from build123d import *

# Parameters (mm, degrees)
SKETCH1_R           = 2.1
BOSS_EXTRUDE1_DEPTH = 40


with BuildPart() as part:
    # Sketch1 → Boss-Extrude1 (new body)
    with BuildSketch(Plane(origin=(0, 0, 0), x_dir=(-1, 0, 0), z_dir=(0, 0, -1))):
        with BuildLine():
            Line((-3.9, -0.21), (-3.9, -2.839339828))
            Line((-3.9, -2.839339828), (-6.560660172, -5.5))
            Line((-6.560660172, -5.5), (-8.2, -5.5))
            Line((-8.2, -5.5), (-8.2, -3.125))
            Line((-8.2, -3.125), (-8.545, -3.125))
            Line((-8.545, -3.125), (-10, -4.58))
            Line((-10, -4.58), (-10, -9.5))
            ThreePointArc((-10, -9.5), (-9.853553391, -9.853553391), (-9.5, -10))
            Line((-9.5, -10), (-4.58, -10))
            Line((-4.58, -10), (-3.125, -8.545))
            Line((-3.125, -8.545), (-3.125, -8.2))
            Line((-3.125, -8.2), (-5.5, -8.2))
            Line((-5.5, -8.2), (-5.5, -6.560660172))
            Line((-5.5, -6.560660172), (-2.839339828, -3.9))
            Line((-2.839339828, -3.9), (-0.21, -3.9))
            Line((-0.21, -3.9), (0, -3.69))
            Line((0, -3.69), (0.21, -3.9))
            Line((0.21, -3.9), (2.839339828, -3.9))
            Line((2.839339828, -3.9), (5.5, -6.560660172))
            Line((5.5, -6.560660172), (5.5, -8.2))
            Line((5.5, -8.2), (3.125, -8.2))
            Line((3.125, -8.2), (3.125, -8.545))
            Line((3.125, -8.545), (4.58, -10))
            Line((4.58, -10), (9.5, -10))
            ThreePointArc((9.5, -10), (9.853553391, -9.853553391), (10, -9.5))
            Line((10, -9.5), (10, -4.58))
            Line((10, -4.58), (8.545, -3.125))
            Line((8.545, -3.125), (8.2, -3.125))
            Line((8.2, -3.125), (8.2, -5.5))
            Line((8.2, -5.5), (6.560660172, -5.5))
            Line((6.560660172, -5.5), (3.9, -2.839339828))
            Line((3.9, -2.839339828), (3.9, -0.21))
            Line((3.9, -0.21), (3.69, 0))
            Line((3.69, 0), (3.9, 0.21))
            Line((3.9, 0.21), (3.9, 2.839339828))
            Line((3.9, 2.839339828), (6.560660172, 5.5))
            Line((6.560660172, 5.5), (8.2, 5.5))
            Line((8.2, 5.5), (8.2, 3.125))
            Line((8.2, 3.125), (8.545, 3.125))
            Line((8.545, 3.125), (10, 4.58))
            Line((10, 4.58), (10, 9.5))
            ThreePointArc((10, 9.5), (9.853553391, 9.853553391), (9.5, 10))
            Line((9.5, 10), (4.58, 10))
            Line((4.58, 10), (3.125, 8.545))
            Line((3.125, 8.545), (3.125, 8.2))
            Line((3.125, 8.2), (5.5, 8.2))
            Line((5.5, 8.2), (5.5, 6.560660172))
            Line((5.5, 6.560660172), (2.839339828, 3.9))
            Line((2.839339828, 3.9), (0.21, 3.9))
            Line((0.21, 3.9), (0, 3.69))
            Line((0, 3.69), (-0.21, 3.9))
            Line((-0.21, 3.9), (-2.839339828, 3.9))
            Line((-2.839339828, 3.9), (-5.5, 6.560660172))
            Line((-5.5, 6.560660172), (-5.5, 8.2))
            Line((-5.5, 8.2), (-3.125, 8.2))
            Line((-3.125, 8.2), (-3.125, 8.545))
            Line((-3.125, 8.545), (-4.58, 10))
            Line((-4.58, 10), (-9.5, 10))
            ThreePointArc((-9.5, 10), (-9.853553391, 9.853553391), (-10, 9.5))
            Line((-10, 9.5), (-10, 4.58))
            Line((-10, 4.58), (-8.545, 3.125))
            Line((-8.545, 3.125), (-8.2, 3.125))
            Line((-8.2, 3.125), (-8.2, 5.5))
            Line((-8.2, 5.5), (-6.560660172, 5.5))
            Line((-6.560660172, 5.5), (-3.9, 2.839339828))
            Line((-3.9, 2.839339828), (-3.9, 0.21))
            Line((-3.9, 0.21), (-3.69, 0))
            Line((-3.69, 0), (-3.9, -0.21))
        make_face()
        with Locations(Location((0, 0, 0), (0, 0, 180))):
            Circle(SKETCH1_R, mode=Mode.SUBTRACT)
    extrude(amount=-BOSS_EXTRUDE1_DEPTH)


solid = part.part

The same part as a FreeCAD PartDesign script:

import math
import FreeCAD as App
import Part
import Sketcher

V = App.Vector

doc = App.newDocument("Part")
body = doc.addObject("PartDesign::Body", "Body")

sketch1 = body.newObject("Sketcher::SketchObject", "Sketch")
sketch1.AttachmentSupport = (doc.getObject("XY_Plane"), [""])
sketch1.MapMode = "FlatFace"
sketch1.addGeometry([
    Part.LineSegment(V(3.9, -0.21, 0), V(3.9, -2.84, 0)),
    Part.LineSegment(V(3.9, -2.84, 0), V(6.56, -5.5, 0)),
    Part.LineSegment(V(6.56, -5.5, 0), V(8.2, -5.5, 0)),
    Part.LineSegment(V(8.2, -5.5, 0), V(8.2, -3.12, 0)),
    Part.LineSegment(V(8.2, -3.12, 0), V(8.54, -3.12, 0)),
    Part.LineSegment(V(8.54, -3.12, 0), V(10, -4.58, 0)),
    Part.LineSegment(V(10, -4.58, 0), V(10, -9.5, 0)),
    Part.ArcOfCircle(Part.Circle(V(9.5, -9.5, 0), V(0, 0, 1), 0.5), math.radians(-90), math.radians(0)),
    Part.LineSegment(V(9.5, -10, 0), V(4.58, -10, 0)),
    Part.LineSegment(V(4.58, -10, 0), V(3.12, -8.54, 0)),
    Part.LineSegment(V(3.12, -8.54, 0), V(3.12, -8.2, 0)),
    Part.LineSegment(V(3.12, -8.2, 0), V(5.5, -8.2, 0)),
    Part.LineSegment(V(5.5, -8.2, 0), V(5.5, -6.56, 0)),
    Part.LineSegment(V(5.5, -6.56, 0), V(2.84, -3.9, 0)),
    Part.LineSegment(V(2.84, -3.9, 0), V(0.21, -3.9, 0)),
    Part.LineSegment(V(0.21, -3.9, 0), V(0, -3.69, 0)),
    Part.LineSegment(V(0, -3.69, 0), V(-0.21, -3.9, 0)),
    Part.LineSegment(V(-0.21, -3.9, 0), V(-2.84, -3.9, 0)),
    Part.LineSegment(V(-2.84, -3.9, 0), V(-5.5, -6.56, 0)),
    Part.LineSegment(V(-5.5, -6.56, 0), V(-5.5, -8.2, 0)),
    Part.LineSegment(V(-5.5, -8.2, 0), V(-3.12, -8.2, 0)),
    Part.LineSegment(V(-3.12, -8.2, 0), V(-3.12, -8.54, 0)),
    Part.LineSegment(V(-3.12, -8.54, 0), V(-4.58, -10, 0)),
    Part.LineSegment(V(-4.58, -10, 0), V(-9.5, -10, 0)),
    Part.ArcOfCircle(Part.Circle(V(-9.5, -9.5, 0), V(0, 0, 1), 0.5), math.radians(180), math.radians(270)),
    Part.LineSegment(V(-10, -9.5, 0), V(-10, -4.58, 0)),
    Part.LineSegment(V(-10, -4.58, 0), V(-8.54, -3.12, 0)),
    Part.LineSegment(V(-8.54, -3.12, 0), V(-8.2, -3.12, 0)),
    Part.LineSegment(V(-8.2, -3.12, 0), V(-8.2, -5.5, 0)),
    Part.LineSegment(V(-8.2, -5.5, 0), V(-6.56, -5.5, 0)),
    Part.LineSegment(V(-6.56, -5.5, 0), V(-3.9, -2.84, 0)),
    Part.LineSegment(V(-3.9, -2.84, 0), V(-3.9, -0.21, 0)),
    Part.LineSegment(V(-3.9, -0.21, 0), V(-3.69, 0, 0)),
    Part.LineSegment(V(-3.69, 0, 0), V(-3.9, 0.21, 0)),
    Part.LineSegment(V(-3.9, 0.21, 0), V(-3.9, 2.84, 0)),
    Part.LineSegment(V(-3.9, 2.84, 0), V(-6.56, 5.5, 0)),
    Part.LineSegment(V(-6.56, 5.5, 0), V(-8.2, 5.5, 0)),
    Part.LineSegment(V(-8.2, 5.5, 0), V(-8.2, 3.12, 0)),
    Part.LineSegment(V(-8.2, 3.12, 0), V(-8.54, 3.12, 0)),
    Part.LineSegment(V(-8.54, 3.12, 0), V(-10, 4.58, 0)),
    Part.LineSegment(V(-10, 4.58, 0), V(-10, 9.5, 0)),
    Part.ArcOfCircle(Part.Circle(V(-9.5, 9.5, 0), V(0, 0, 1), 0.5), math.radians(90), math.radians(180)),
    Part.LineSegment(V(-9.5, 10, 0), V(-4.58, 10, 0)),
    Part.LineSegment(V(-4.58, 10, 0), V(-3.12, 8.54, 0)),
    Part.LineSegment(V(-3.12, 8.54, 0), V(-3.12, 8.2, 0)),
    Part.LineSegment(V(-3.12, 8.2, 0), V(-5.5, 8.2, 0)),
    Part.LineSegment(V(-5.5, 8.2, 0), V(-5.5, 6.56, 0)),
    Part.LineSegment(V(-5.5, 6.56, 0), V(-2.84, 3.9, 0)),
    Part.LineSegment(V(-2.84, 3.9, 0), V(-0.21, 3.9, 0)),
    Part.LineSegment(V(-0.21, 3.9, 0), V(0, 3.69, 0)),
    Part.LineSegment(V(0, 3.69, 0), V(0.21, 3.9, 0)),
    Part.LineSegment(V(0.21, 3.9, 0), V(2.84, 3.9, 0)),
    Part.LineSegment(V(2.84, 3.9, 0), V(5.5, 6.56, 0)),
    Part.LineSegment(V(5.5, 6.56, 0), V(5.5, 8.2, 0)),
    Part.LineSegment(V(5.5, 8.2, 0), V(3.12, 8.2, 0)),
    Part.LineSegment(V(3.12, 8.2, 0), V(3.12, 8.54, 0)),
    Part.LineSegment(V(3.12, 8.54, 0), V(4.58, 10, 0)),
    Part.LineSegment(V(4.58, 10, 0), V(9.5, 10, 0)),
    Part.ArcOfCircle(Part.Circle(V(9.5, 9.5, 0), V(0, 0, 1), 0.5), math.radians(0), math.radians(90)),
    Part.LineSegment(V(10, 9.5, 0), V(10, 4.58, 0)),
    Part.LineSegment(V(10, 4.58, 0), V(8.54, 3.12, 0)),
    Part.LineSegment(V(8.54, 3.12, 0), V(8.2, 3.12, 0)),
    Part.LineSegment(V(8.2, 3.12, 0), V(8.2, 5.5, 0)),
    Part.LineSegment(V(8.2, 5.5, 0), V(6.56, 5.5, 0)),
    Part.LineSegment(V(6.56, 5.5, 0), V(3.9, 2.84, 0)),
    Part.LineSegment(V(3.9, 2.84, 0), V(3.9, 0.21, 0)),
    Part.LineSegment(V(3.9, 0.21, 0), V(3.69, 0, 0)),
    Part.LineSegment(V(3.69, 0, 0), V(3.9, -0.21, 0)),
    Part.Circle(V(0, 0, 0), V(0, 0, 1), 2.1),
], False)
sketch1.addConstraint([
    Sketcher.Constraint("Coincident", 0, 2, 1, 1),
    Sketcher.Constraint("Coincident", 1, 2, 2, 1),
    Sketcher.Constraint("Coincident", 2, 2, 3, 1),
    Sketcher.Constraint("Coincident", 3, 2, 4, 1),
    Sketcher.Constraint("Coincident", 4, 2, 5, 1),
    Sketcher.Constraint("Coincident", 5, 2, 6, 1),
    Sketcher.Constraint("Tangent", 6, 2, 7, 2),
    Sketcher.Constraint("Tangent", 7, 1, 8, 1),
    Sketcher.Constraint("Coincident", 8, 2, 9, 1),
    Sketcher.Constraint("Coincident", 9, 2, 10, 1),
    Sketcher.Constraint("Coincident", 10, 2, 11, 1),
    Sketcher.Constraint("Coincident", 11, 2, 12, 1),
    Sketcher.Constraint("Coincident", 12, 2, 13, 1),
    Sketcher.Constraint("Coincident", 13, 2, 14, 1),
    Sketcher.Constraint("Coincident", 14, 2, 15, 1),
    Sketcher.Constraint("Coincident", 15, 2, 16, 1),
    Sketcher.Constraint("Coincident", 16, 2, 17, 1),
    Sketcher.Constraint("Coincident", 17, 2, 18, 1),
    Sketcher.Constraint("Coincident", 18, 2, 19, 1),
    Sketcher.Constraint("Coincident", 19, 2, 20, 1),
    Sketcher.Constraint("Coincident", 20, 2, 21, 1),
    Sketcher.Constraint("Coincident", 21, 2, 22, 1),
    Sketcher.Constraint("Coincident", 22, 2, 23, 1),
    Sketcher.Constraint("Tangent", 23, 2, 24, 2),
    Sketcher.Constraint("Tangent", 24, 1, 25, 1),
    Sketcher.Constraint("Coincident", 25, 2, 26, 1),
    Sketcher.Constraint("Coincident", 26, 2, 27, 1),
    Sketcher.Constraint("Coincident", 27, 2, 28, 1),
    Sketcher.Constraint("Coincident", 28, 2, 29, 1),
    Sketcher.Constraint("Coincident", 29, 2, 30, 1),
    Sketcher.Constraint("Coincident", 30, 2, 31, 1),
    Sketcher.Constraint("Coincident", 31, 2, 32, 1),
    Sketcher.Constraint("Coincident", 32, 2, 33, 1),
    Sketcher.Constraint("Coincident", 33, 2, 34, 1),
    Sketcher.Constraint("Coincident", 34, 2, 35, 1),
    Sketcher.Constraint("Coincident", 35, 2, 36, 1),
    Sketcher.Constraint("Coincident", 36, 2, 37, 1),
    Sketcher.Constraint("Coincident", 37, 2, 38, 1),
    Sketcher.Constraint("Coincident", 38, 2, 39, 1),
    Sketcher.Constraint("Coincident", 39, 2, 40, 1),
    Sketcher.Constraint("Tangent", 40, 2, 41, 2),
    Sketcher.Constraint("Tangent", 41, 1, 42, 1),
    Sketcher.Constraint("Coincident", 42, 2, 43, 1),
    Sketcher.Constraint("Coincident", 43, 2, 44, 1),
    Sketcher.Constraint("Coincident", 44, 2, 45, 1),
    Sketcher.Constraint("Coincident", 45, 2, 46, 1),
    Sketcher.Constraint("Coincident", 46, 2, 47, 1),
    Sketcher.Constraint("Coincident", 47, 2, 48, 1),
    Sketcher.Constraint("Coincident", 48, 2, 49, 1),
    Sketcher.Constraint("Coincident", 49, 2, 50, 1),
    Sketcher.Constraint("Coincident", 50, 2, 51, 1),
    Sketcher.Constraint("Coincident", 51, 2, 52, 1),
    Sketcher.Constraint("Coincident", 52, 2, 53, 1),
    Sketcher.Constraint("Coincident", 53, 2, 54, 1),
    Sketcher.Constraint("Coincident", 54, 2, 55, 1),
    Sketcher.Constraint("Coincident", 55, 2, 56, 1),
    Sketcher.Constraint("Coincident", 56, 2, 57, 1),
    Sketcher.Constraint("Tangent", 57, 2, 58, 2),
    Sketcher.Constraint("Tangent", 58, 1, 59, 1),
    Sketcher.Constraint("Coincident", 59, 2, 60, 1),
    Sketcher.Constraint("Coincident", 60, 2, 61, 1),
    Sketcher.Constraint("Coincident", 61, 2, 62, 1),
    Sketcher.Constraint("Coincident", 62, 2, 63, 1),
    Sketcher.Constraint("Coincident", 63, 2, 64, 1),
    Sketcher.Constraint("Coincident", 64, 2, 65, 1),
    Sketcher.Constraint("Coincident", 65, 2, 66, 1),
    Sketcher.Constraint("Coincident", 66, 2, 67, 1),
    Sketcher.Constraint("Coincident", 67, 2, 0, 1),
    Sketcher.Constraint("Vertical", 0),
    Sketcher.Constraint("Horizontal", 2),
    Sketcher.Constraint("Vertical", 3),
    Sketcher.Constraint("Horizontal", 4),
    Sketcher.Constraint("Vertical", 6),
    Sketcher.Constraint("Horizontal", 8),
    Sketcher.Constraint("Vertical", 10),
    Sketcher.Constraint("Horizontal", 11),
    Sketcher.Constraint("Vertical", 12),
    Sketcher.Constraint("Horizontal", 14),
    Sketcher.Constraint("Horizontal", 17),
    Sketcher.Constraint("Vertical", 19),
    Sketcher.Constraint("Horizontal", 20),
    Sketcher.Constraint("Vertical", 21),
    Sketcher.Constraint("Horizontal", 23),
    Sketcher.Constraint("Vertical", 25),
    Sketcher.Constraint("Horizontal", 27),
    Sketcher.Constraint("Vertical", 28),
    Sketcher.Constraint("Horizontal", 29),
    Sketcher.Constraint("Vertical", 31),
    Sketcher.Constraint("Vertical", 34),
    Sketcher.Constraint("Horizontal", 36),
    Sketcher.Constraint("Vertical", 37),
    Sketcher.Constraint("Horizontal", 38),
    Sketcher.Constraint("Vertical", 40),
    Sketcher.Constraint("Horizontal", 42),
    Sketcher.Constraint("Vertical", 44),
    Sketcher.Constraint("Horizontal", 45),
    Sketcher.Constraint("Vertical", 46),
    Sketcher.Constraint("Horizontal", 48),
    Sketcher.Constraint("Horizontal", 51),
    Sketcher.Constraint("Vertical", 53),
    Sketcher.Constraint("Horizontal", 54),
    Sketcher.Constraint("Vertical", 55),
    Sketcher.Constraint("Horizontal", 57),
    Sketcher.Constraint("Vertical", 59),
    Sketcher.Constraint("Horizontal", 61),
    Sketcher.Constraint("Vertical", 62),
    Sketcher.Constraint("Horizontal", 63),
    Sketcher.Constraint("Vertical", 65),
    Sketcher.Constraint("Coincident", 68, 3, -1, 1),
    Sketcher.Constraint("Equal", 7, 24),
    Sketcher.Constraint("Equal", 24, 41),
    Sketcher.Constraint("Equal", 41, 58),
    Sketcher.Constraint("Symmetric", 7, 3, 41, 3, -1, 1),
    Sketcher.Constraint("Symmetric", 24, 3, 58, 3, -1, 1),
    Sketcher.Constraint("Symmetric", 0, 2, 34, 2, -1, 1),
    Sketcher.Constraint("Symmetric", 1, 2, 35, 2, -1, 1),
    Sketcher.Constraint("Symmetric", 3, 2, 37, 2, -1, 1),
    Sketcher.Constraint("Symmetric", 9, 2, 43, 2, -1, 1),
    Sketcher.Constraint("Symmetric", 11, 2, 45, 2, -1, 1),
    Sketcher.Constraint("Symmetric", 13, 2, 47, 2, -1, 1),
    Sketcher.Constraint("Symmetric", 15, 2, 49, 2, -1, 1),
    Sketcher.Constraint("Symmetric", 16, 2, 50, 2, -1, 1),
    Sketcher.Constraint("Symmetric", 18, 2, 52, 2, -1, 1),
    Sketcher.Constraint("Symmetric", 20, 2, 54, 2, -1, 1),
    Sketcher.Constraint("Symmetric", 26, 2, 60, 2, -1, 1),
    Sketcher.Constraint("Symmetric", 28, 2, 62, 2, -1, 1),
    Sketcher.Constraint("Symmetric", 30, 2, 64, 2, -1, 1),
    Sketcher.Constraint("Symmetric", 32, 2, 66, 2, -1, 1),
    Sketcher.Constraint("Symmetric", 7, 3, 24, 3, -2),
    Sketcher.Constraint("Symmetric", 14, 2, 16, 2, -2),
    Sketcher.Constraint("Symmetric", 12, 2, 18, 2, -2),
    Sketcher.Constraint("Symmetric", 10, 2, 20, 2, -2),
    Sketcher.Constraint("Symmetric", 4, 2, 26, 2, -2),
    Sketcher.Constraint("Symmetric", 2, 2, 28, 2, -2),
    Sketcher.Constraint("Symmetric", 0, 2, 30, 2, -2),
    Sketcher.Constraint("PointOnObject", 15, 2, -2),
    Sketcher.Constraint("PointOnObject", 32, 2, -1),
    Sketcher.Constraint("Parallel", 1, 5),
    Sketcher.Constraint("Parallel", 5, 9),
    Sketcher.Constraint("Parallel", 9, 13),
    Sketcher.Constraint("Parallel", 13, 15),
    Sketcher.Constraint("Perpendicular", 15, 16),
    Sketcher.Constraint("Parallel", 16, 18),
    Sketcher.Constraint("Parallel", 18, 22),
    Sketcher.Constraint("Parallel", 22, 26),
    Sketcher.Constraint("Parallel", 26, 30),
    Sketcher.Constraint("Parallel", 30, 32),
    Sketcher.Constraint("Perpendicular", 32, 33),
    Sketcher.Constraint("Parallel", 35, 39),
    Sketcher.Constraint("Parallel", 39, 43),
    Sketcher.Constraint("Parallel", 43, 47),
    Sketcher.Constraint("Parallel", 47, 49),
    Sketcher.Constraint("Parallel", 50, 52),
    Sketcher.Constraint("Parallel", 52, 56),
    Sketcher.Constraint("Parallel", 56, 60),
    Sketcher.Constraint("Parallel", 60, 64),
    Sketcher.Constraint("Parallel", 64, 66),
    Sketcher.Constraint("Perpendicular", 66, 67),
    Sketcher.Constraint("Horizontal", 9, 2, 21, 2),
    Sketcher.Constraint("Horizontal", 43, 2, 55, 2),
    Sketcher.Constraint("Horizontal", 39, 2, 59, 2),
    Sketcher.Constraint("Equal", 51, 0),
    Sketcher.Constraint("Equal", 54, 3),
    Sketcher.Constraint("Equal", 57, 6),
    Sketcher.Constraint("Equal", 61, 10),
    Sketcher.Constraint("Equal", 63, 12),
    Sketcher.Constraint("Equal", 5, 9),
    Sketcher.Constraint("Equal", 1, 13),
    Sketcher.Constraint("Equal", 16, 32),
    Sketcher.Constraint("Diameter", 68, 4.2),
    Sketcher.Constraint("Radius", 7, 0.5),
    Sketcher.Constraint("DistanceX", -1, 1, 5, 2, 10.0),
    Sketcher.Constraint("DistanceX", 8, 2, 8, 1, 4.92),
    Sketcher.Constraint("DistanceX", -1, 1, 0, 2, 3.9),
    Sketcher.Constraint("DistanceY", 1, 2, -1, 1, 5.5),
    Sketcher.Constraint("DistanceX", -1, 1, 2, 2, 8.2),
    Sketcher.Constraint("DistanceX", 4, 1, 4, 2, 0.345),
    Sketcher.Constraint("DistanceX", -1, 1, 14, 2, 0.21),
    Sketcher.Constraint("DistanceX", 2, 1, 2, 2, 1.63934),
])
pad1 = body.newObject("PartDesign::Pad", "Pad")
pad1.Profile = sketch1
pad1.Length = 40

doc.recompute()
